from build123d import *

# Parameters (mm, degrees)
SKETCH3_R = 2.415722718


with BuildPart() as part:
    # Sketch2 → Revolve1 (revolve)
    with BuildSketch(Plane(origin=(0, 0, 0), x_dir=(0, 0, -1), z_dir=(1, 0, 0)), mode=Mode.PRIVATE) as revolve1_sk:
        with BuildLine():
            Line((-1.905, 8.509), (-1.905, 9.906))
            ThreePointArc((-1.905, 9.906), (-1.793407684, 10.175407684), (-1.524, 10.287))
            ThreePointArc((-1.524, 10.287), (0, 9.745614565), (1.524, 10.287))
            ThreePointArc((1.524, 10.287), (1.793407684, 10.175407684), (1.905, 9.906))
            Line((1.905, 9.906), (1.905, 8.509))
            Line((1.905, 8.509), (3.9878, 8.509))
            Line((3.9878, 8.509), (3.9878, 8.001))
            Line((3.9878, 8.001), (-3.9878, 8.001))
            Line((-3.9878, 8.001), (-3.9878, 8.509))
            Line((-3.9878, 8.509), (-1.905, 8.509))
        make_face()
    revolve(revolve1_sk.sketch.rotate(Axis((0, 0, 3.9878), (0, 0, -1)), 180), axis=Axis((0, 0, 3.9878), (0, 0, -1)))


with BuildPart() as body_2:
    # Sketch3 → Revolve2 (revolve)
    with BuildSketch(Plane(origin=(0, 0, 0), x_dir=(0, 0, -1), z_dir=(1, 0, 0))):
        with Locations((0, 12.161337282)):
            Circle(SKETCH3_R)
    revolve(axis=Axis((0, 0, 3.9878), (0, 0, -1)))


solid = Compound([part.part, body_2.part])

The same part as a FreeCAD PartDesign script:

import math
import FreeCAD as App
import Part
import Sketcher
from FreeCAD import Vector
Q = App.Units.Quantity

doc = App.newDocument("Part")
body = doc.addObject("PartDesign::Body", "Body")

sketch1 = body.newObject("Sketcher::SketchObject", "Sketch")
sketch1.AttachmentSupport = (doc.getObject("YZ_Plane"), [""])
sketch1.MapMode = "FlatFace"
sketch1.addGeometry([
    Part.LineSegment(Vector(9.91, 1.91, 0), Vector(8.51, 1.91, 0)),
    Part.LineSegment(Vector(8.51, 1.91, 0), Vector(8.51, 3.99, 0)),
    Part.LineSegment(Vector(8.51, 3.99, 0), Vector(8, 3.99, 0)),
    Part.LineSegment(Vector(8, 3.99, 0), Vector(8, -3.99, 0)),
    Part.LineSegment(Vector(8, -3.99, 0), Vector(8.51, -3.99, 0)),
    Part.LineSegment(Vector(8.51, -3.99, 0), Vector(8.51, -1.91, 0)),
    Part.LineSegment(Vector(8.51, -1.91, 0), Vector(9.91, -1.91, 0)),
    Part.ArcOfCircle(Part.Circle(Vector(9.91, -1.52, 0), Vector(0, 0, 1), 0.38), math.radians(-90), math.radians(0)),
    Part.ArcOfCircle(Part.Circle(Vector(12.16, 0, 0), Vector(0, 0, 1), 2.42), math.radians(141), math.radians(219)),
    Part.ArcOfCircle(Part.Circle(Vector(9.91, 1.52, 0), Vector(0, 0, 1), 0.38), math.radians(0), math.radians(90)),
], False)
sketch1.addConstraint([
    Sketcher.Constraint("Coincident", 0, 2, 1, 1),
    Sketcher.Constraint("Coincident", 1, 2, 2, 1),
    Sketcher.Constraint("Coincident", 2, 2, 3, 1),
    Sketcher.Constraint("Coincident", 3, 2, 4, 1),
    Sketcher.Constraint("Coincident", 4, 2, 5, 1),
    Sketcher.Constraint("Coincident", 5, 2, 6, 1),
    Sketcher.Constraint("Tangent", 6, 2, 7, 1),
    Sketcher.Constraint("Coincident", 7, 2, 8, 2),
    Sketcher.Constraint("Coincident", 8, 1, 9, 1),
    Sketcher.Constraint("Tangent", 9, 2, 0, 1),
    Sketcher.Constraint("Horizontal", 0),
    Sketcher.Constraint("Vertical", 1),
    Sketcher.Constraint("Horizontal", 2),
    Sketcher.Constraint("Vertical", 3),
    Sketcher.Constraint("Horizontal", 4),
    Sketcher.Constraint("Vertical", 5),
    Sketcher.Constraint("Horizontal", 6),
    Sketcher.Constraint("Equal", 7, 9),
    Sketcher.Constraint("Symmetric", 7, 3, 9, 3, -1),
    Sketcher.Constraint("Symmetric", 1, 2, 4, 2, -1),
    Sketcher.Constraint("PointOnObject", 8, 3, -1),
    Sketcher.Constraint("Horizontal", 9, 3, 8, 1),
    Sketcher.Constraint("Radius", 7, Q("0.015 in")),
    Sketcher.Constraint("DistanceX", 2, 2, 2, 1, Q("0.02 in")),
    Sketcher.Constraint("DistanceX", 0, 2, 0, 1, Q("0.055 in")),
    Sketcher.Constraint("DistanceY", 1, 1, 1, 2, Q("0.082 in")),
    Sketcher.Constraint("DistanceY", 3, 2, 3, 1, Q("0.314 in")),
    Sketcher.Constraint("DistanceX", -1, 1, 7, 3, Q("0.39 in")),
    Sketcher.Constraint("Radius", 8, Q("2.415723 mm")),
])
revolution = body.newObject("PartDesign::Revolution", "Revolution")
revolution.Profile = sketch1
revolution.ReferenceAxis = (sketch1, ["V_Axis"])
revolution.Angle = 360
body2 = doc.addObject("PartDesign::Body", "Body001")

sketch2 = body2.newObject("Sketcher::SketchObject", "Sketch001")
sketch2.AttachmentSupport = (doc.getObject("YZ_Plane001"), [""])
sketch2.MapMode = "FlatFace"
sketch2.addGeometry(Part.Circle(Vector(12.2, 0, 0), Vector(0, 0, 1), 2.4), False)
sketch2.addConstraint([
    Sketcher.Constraint("PointOnObject", 0, 3, -1),
    Sketcher.Constraint("Diameter", 0, Q("4.831445 mm")),
    Sketcher.Constraint("DistanceX", -1, 1, 0, 3, Q("12.161337 mm")),
])
revolution2 = body2.newObject("PartDesign::Revolution", "Revolution001")
revolution2.Profile = sketch2
revolution2.ReferenceAxis = (sketch2, ["V_Axis"])
revolution2.Angle = 360

doc.recompute()
